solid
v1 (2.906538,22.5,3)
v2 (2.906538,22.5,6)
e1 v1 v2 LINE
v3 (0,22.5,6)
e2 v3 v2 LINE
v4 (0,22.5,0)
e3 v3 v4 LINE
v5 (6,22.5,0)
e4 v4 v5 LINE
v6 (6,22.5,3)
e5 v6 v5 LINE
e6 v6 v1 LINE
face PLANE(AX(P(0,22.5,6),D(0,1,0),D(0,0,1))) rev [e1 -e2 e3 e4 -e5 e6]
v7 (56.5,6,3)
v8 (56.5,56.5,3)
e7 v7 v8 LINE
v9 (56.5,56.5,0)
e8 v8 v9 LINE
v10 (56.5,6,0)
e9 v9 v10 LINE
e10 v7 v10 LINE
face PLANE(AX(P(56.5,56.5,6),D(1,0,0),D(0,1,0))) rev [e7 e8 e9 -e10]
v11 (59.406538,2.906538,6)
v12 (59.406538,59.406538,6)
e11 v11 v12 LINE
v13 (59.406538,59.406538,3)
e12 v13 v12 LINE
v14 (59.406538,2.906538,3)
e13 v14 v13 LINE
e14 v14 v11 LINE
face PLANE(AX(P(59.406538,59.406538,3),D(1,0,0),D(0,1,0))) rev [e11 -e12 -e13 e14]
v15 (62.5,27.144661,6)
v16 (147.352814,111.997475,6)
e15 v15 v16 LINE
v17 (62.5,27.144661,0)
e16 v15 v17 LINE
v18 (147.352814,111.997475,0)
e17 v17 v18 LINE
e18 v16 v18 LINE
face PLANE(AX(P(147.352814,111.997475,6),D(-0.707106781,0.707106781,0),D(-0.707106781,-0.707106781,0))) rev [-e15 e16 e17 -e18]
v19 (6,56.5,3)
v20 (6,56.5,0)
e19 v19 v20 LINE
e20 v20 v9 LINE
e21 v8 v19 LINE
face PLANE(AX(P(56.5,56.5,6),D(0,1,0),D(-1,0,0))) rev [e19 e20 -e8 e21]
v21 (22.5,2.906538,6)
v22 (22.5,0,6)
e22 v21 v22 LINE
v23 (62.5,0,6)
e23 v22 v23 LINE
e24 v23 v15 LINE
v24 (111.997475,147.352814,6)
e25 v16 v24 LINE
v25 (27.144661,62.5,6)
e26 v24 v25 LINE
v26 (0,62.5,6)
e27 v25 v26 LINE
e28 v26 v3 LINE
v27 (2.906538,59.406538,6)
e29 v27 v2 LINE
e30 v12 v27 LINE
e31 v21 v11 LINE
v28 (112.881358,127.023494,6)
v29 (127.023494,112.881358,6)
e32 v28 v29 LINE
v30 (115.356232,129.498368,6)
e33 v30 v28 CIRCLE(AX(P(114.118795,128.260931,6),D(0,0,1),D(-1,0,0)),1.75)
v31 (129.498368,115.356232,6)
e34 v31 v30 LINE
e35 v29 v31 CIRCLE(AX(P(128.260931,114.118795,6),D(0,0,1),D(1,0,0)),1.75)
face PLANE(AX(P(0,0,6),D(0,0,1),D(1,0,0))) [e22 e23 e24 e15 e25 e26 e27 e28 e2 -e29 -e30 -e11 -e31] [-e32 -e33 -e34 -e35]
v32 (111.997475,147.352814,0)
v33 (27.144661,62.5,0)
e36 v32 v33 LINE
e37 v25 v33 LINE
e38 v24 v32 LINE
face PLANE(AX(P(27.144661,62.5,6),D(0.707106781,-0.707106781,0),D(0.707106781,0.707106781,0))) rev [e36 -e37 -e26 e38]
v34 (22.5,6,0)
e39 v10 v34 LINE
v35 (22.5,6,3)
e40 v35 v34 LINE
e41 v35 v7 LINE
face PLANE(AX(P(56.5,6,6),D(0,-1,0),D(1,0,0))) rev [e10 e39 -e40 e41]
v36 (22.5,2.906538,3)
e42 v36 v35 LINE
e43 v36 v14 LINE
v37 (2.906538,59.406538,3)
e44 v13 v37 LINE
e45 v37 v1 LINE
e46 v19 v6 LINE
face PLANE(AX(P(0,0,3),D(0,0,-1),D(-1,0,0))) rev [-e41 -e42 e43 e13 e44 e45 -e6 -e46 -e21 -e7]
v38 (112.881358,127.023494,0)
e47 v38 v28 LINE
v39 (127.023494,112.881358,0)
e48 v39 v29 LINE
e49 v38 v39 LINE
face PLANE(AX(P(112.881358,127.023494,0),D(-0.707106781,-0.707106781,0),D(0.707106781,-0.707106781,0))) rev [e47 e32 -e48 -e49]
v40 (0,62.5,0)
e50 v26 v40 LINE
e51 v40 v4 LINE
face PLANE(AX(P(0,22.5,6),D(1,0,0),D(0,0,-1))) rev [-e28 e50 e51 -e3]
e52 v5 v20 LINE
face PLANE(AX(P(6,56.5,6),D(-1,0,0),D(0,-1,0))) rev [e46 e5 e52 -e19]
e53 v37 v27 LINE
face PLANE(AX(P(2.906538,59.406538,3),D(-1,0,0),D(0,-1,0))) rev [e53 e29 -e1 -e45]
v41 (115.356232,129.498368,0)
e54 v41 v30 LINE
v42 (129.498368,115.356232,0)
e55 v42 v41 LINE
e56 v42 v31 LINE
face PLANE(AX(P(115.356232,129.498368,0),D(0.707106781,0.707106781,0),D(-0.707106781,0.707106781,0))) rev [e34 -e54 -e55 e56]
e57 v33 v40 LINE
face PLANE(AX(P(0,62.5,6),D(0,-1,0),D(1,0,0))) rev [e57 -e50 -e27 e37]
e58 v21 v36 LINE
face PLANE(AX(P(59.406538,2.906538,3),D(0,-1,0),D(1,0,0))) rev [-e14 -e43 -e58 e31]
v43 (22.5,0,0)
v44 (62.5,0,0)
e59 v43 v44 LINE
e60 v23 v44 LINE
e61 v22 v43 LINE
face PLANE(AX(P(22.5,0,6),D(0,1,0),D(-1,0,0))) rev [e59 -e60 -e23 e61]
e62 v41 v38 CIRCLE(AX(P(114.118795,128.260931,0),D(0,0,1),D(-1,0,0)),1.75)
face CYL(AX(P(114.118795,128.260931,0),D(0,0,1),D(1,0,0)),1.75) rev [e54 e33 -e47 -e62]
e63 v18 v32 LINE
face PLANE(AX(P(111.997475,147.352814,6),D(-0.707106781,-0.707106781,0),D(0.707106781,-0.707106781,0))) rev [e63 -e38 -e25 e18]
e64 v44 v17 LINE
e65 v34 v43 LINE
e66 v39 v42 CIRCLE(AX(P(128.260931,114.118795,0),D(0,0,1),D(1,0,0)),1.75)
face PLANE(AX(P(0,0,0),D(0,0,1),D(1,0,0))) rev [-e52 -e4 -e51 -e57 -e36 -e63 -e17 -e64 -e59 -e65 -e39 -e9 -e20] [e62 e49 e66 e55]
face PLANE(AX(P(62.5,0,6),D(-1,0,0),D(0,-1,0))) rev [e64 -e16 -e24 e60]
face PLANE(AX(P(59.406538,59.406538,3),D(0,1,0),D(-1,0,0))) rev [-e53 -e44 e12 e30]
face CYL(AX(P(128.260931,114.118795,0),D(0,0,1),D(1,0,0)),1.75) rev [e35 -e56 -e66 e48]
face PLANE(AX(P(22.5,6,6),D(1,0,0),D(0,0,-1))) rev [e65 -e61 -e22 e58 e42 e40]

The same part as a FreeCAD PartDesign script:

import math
import FreeCAD as App
import Part
import Sketcher
from FreeCAD import Vector
Q = App.Units.Quantity

doc = App.newDocument("Part")
params = doc.addObject("Spreadsheet::Sheet", "Params")
for row, (alias, value) in enumerate([
    ("sketch1_width", "40 mm"),
    ("sketch1_width2", "6 mm"),
    ("sketch1_width3", "34 mm"),
    ("sketch1_length", "120 mm"),
    ("sketch1_length2", "50 mm"),
    ("pad1_length", "6 mm"),
    ("sketch2_width", "56.5 mm"),
    ("pocket1_length", "3 mm"),
    ("sketch3_radius", "1.75 mm"),
    ("sketch3_length", "20 mm"),
    ("pocket2_length", "6 mm"),
], start=1):
    params.set(f"A{row}", alias)
    params.set(f"B{row}", "=" + value)
    params.setAlias(f"B{row}", alias)

body = doc.addObject("PartDesign::Body", "Body")

sketch1 = body.newObject("Sketcher::SketchObject", "Sketch")
sketch1.AttachmentSupport = (doc.getObject("XY_Plane"), [""])
sketch1.MapMode = "FlatFace"
sketch1.addGeometry([
    Part.LineSegment(Vector(22, 0, 0), Vector(62, 0, 0)),
    Part.LineSegment(Vector(62, 0, 0), Vector(62, 27, 0)),
    Part.LineSegment(Vector(62, 27, 0), Vector(147, 112, 0)),
    Part.LineSegment(Vector(147, 112, 0), Vector(112, 147, 0)),
    Part.LineSegment(Vector(112, 147, 0), Vector(27, 62, 0)),
    Part.LineSegment(Vector(27, 62, 0), Vector(0, 62, 0)),
    Part.LineSegment(Vector(0, 62, 0), Vector(0, 22, 0)),
    Part.LineSegment(Vector(0, 22, 0), Vector(6, 22, 0)),
    Part.LineSegment(Vector(6, 22, 0), Vector(6, 56, 0)),
    Part.LineSegment(Vector(6, 56, 0), Vector(56, 56, 0)),
    Part.LineSegment(Vector(56, 56, 0), Vector(56, 6, 0)),
    Part.LineSegment(Vector(56, 6, 0), Vector(22, 6, 0)),
    Part.LineSegment(Vector(22, 6, 0), Vector(22, 0, 0)),
], False)
sketch1.addConstraint([
    Sketcher.Constraint("Coincident", 0, 2, 1, 1),
    Sketcher.Constraint("Coincident", 1, 2, 2, 1),
    Sketcher.Constraint("Coincident", 2, 2, 3, 1),
    Sketcher.Constraint("Coincident", 3, 2, 4, 1),
    Sketcher.Constraint("Coincident", 4, 2, 5, 1),
    Sketcher.Constraint("Coincident", 5, 2, 6, 1),
    Sketcher.Constraint("Coincident", 6, 2, 7, 1),
    Sketcher.Constraint("Coincident", 7, 2, 8, 1),
    Sketcher.Constraint("Coincident", 8, 2, 9, 1),
    Sketcher.Constraint("Coincident", 9, 2, 10, 1),
    Sketcher.Constraint("Coincident", 10, 2, 11, 1),
    Sketcher.Constraint("Coincident", 11, 2, 12, 1),
    Sketcher.Constraint("Coincident", 12, 2, 0, 1),
    Sketcher.Constraint("Horizontal", 0),
    Sketcher.Constraint("Vertical", 1),
    Sketcher.Constraint("Horizontal", 5),
    Sketcher.Constraint("Vertical", 6),
    Sketcher.Constraint("Horizontal", 7),
    Sketcher.Constraint("Vertical", 8),
    Sketcher.Constraint("Horizontal", 9),
    Sketcher.Constraint("Vertical", 10),
    Sketcher.Constraint("Horizontal", 11),
    Sketcher.Constraint("Vertical", 12),
    Sketcher.Constraint("PointOnObject", 0, 2, -1),
    Sketcher.Constraint("PointOnObject", 5, 2, -2),
    Sketcher.Constraint("Perpendicular", 2, 3),
    Sketcher.Constraint("Perpendicular", 3, 4),
    Sketcher.Constraint("Equal", 5, 1),
    Sketcher.Constraint("Equal", 0, 6),
    Sketcher.Constraint("Equal", 11, 8),
    Sketcher.Constraint("Equal", 9, 10),
    Sketcher.Constraint("Equal", 7, 12),
    Sketcher.Constraint("Equal", 2, 4),
    Sketcher.Constraint("DistanceX", 0, 1, 0, 2, 40.0),
    Sketcher.Constraint("DistanceX", 7, 1, 7, 2, 6.0),
    Sketcher.Constraint("DistanceX", 11, 2, 11, 1, 34.0),
    Sketcher.Constraint("Distance", 2, 120.0),
    Sketcher.Constraint("Distance", 3, 50.0),
    Sketcher.Constraint("DistanceX", 9, 1, 9, 2, 50.5),
])
sketch1.setExpression("Constraints[33]", "Params.sketch1_width")
sketch1.setExpression("Constraints[34]", "Params.sketch1_width2")
sketch1.setExpression("Constraints[35]", "Params.sketch1_width3")
sketch1.setExpression("Constraints[36]", "Params.sketch1_length")
sketch1.setExpression("Constraints[37]", "Params.sketch1_length2")
pad1 = body.newObject("PartDesign::Pad", "Pad")
pad1.Profile = sketch1
pad1.setExpression("Length", "Params.pad1_length")

sketch2 = body.newObject("Sketcher::SketchObject", "Sketch001")
sketch2.AttachmentSupport = (doc.getObject("XY_Plane"), [""])
sketch2.MapMode = "FlatFace"
sketch2.AttachmentOffset = App.Placement(Vector(0, 0, 6), App.Rotation())
sketch2.addGeometry([
    Part.LineSegment(Vector(3, 59, 0), Vector(3, 3, 0)),
    Part.LineSegment(Vector(3, 3, 0), Vector(59, 3, 0)),
    Part.LineSegment(Vector(59, 3, 0), Vector(59, 59, 0)),
    Part.LineSegment(Vector(59, 59, 0), Vector(3, 59, 0)),
], False)
sketch2.addConstraint([
    Sketcher.Constraint("Coincident", 0, 2, 1, 1),
    Sketcher.Constraint("Coincident", 1, 2, 2, 1),
    Sketcher.Constraint("Coincident", 2, 2, 3, 1),
    Sketcher.Constraint("Coincident", 3, 2, 0, 1),
    Sketcher.Constraint("Vertical", 0),
    Sketcher.Constraint("Horizontal", 1),
    Sketcher.Constraint("Vertical", 2),
    Sketcher.Constraint("Horizontal", 3),
    Sketcher.Constraint("Equal", 3, 0),
    Sketcher.Constraint("DistanceX", 1, 1, 1, 2, 56.5),
    Sketcher.Constraint("DistanceX", -1, 1, 0, 2, 2.906538),
    Sketcher.Constraint("DistanceY", -1, 1, 0, 2, 2.906538),
])
sketch2.setExpression("Constraints[9]", "Params.sketch2_width")
pocket1 = body.newObject("PartDesign::Pocket", "Pocket")
pocket1.Profile = sketch2
pocket1.setExpression("Length", "Params.pocket1_length")

sketch3 = body.newObject("Sketcher::SketchObject", "Sketch002")
sketch3.AttachmentSupport = (doc.getObject("XY_Plane"), [""])
sketch3.MapMode = "FlatFace"
sketch3.AttachmentOffset = App.Placement(Vector(0, 0, 6), App.Rotation())
sketch3.addGeometry([
    Part.LineSegment(Vector(112.9, 127, 0), Vector(127, 112.9, 0)),
    Part.ArcOfCircle(Part.Circle(Vector(128.3, 114.1, 0), Vector(0, 0, 1), 1.8), math.radians(-135), math.radians(45)),
    Part.LineSegment(Vector(129.5, 115.4, 0), Vector(115.4, 129.5, 0)),
    Part.ArcOfCircle(Part.Circle(Vector(114.1, 128.3, 0), Vector(0, 0, 1), 1.8), math.radians(45), math.radians(225)),
], False)
sketch3.addConstraint([
    Sketcher.Constraint("Tangent", 0, 2, 1, 1),
    Sketcher.Constraint("Tangent", 1, 2, 2, 1),
    Sketcher.Constraint("Tangent", 2, 2, 3, 1),
    Sketcher.Constraint("Tangent", 3, 2, 0, 1),
    Sketcher.Constraint("Equal", 1, 3),
    Sketcher.Constraint("Angle", 0, Q("-45 deg")),
    Sketcher.Constraint("Radius", 1, 1.75),
    Sketcher.Constraint("Distance", 0, 20.0),
    Sketcher.Constraint("DistanceX", -1, 1, 1, 3, 128.260931),
    Sketcher.Constraint("DistanceY", -1, 1, 3, 3, 128.260931),
])
sketch3.setExpression("Constraints[6]", "Params.sketch3_radius")
sketch3.setExpression("Constraints[7]", "Params.sketch3_length")
pocket2 = body.newObject("PartDesign::Pocket", "Pocket001")
pocket2.Profile = sketch3
pocket2.setExpression("Length", "Params.pocket2_length")

doc.recompute()
